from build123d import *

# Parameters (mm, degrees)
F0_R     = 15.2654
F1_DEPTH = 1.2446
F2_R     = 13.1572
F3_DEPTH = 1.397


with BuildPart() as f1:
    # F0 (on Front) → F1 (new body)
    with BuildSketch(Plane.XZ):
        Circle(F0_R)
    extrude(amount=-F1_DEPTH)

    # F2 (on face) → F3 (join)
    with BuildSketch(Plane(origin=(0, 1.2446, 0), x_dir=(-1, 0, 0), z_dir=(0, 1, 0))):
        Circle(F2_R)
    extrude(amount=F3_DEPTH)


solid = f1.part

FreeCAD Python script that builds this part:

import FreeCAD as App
import Part
import Sketcher
Q = App.Units.Quantity

doc = App.newDocument("Part")
body = doc.addObject("PartDesign::Body", "Body")

# Sketch on XZ plane
sketch1 = body.newObject("Sketcher::SketchObject", "Sketch")
sketch1.AttachmentSupport = (doc.getObject("XZ_Plane"), [""])
sketch1.MapMode = "FlatFace"
sketch1.addGeometry(Part.Circle(App.Vector(0, 0, 0), App.Vector(0, 0, 1), 15), False)
sketch1.addConstraint(Sketcher.Constraint("Coincident", 0, 3, -1, 1))
sketch1.addConstraint(Sketcher.Constraint("Diameter", 0, Q("1.202 in")))
pad1 = body.newObject("PartDesign::Pad", "Pad")
pad1.Profile = sketch1
pad1.Length = Q("0.049 in")
pad1.Reversed = True

# Sketch on XZ plane
sketch2 = body.newObject("Sketcher::SketchObject", "Sketch001")
sketch2.AttachmentSupport = (doc.getObject("XZ_Plane"), [""])
sketch2.MapMode = "FlatFace"
sketch2.AttachmentOffset = App.Placement(App.Vector(0, 0, -0.049 * 25.4), App.Rotation())
sketch2.addGeometry(Part.Circle(App.Vector(0, 0, 0), App.Vector(0, 0, 1), 13), False)
sketch2.addConstraint(Sketcher.Constraint("Coincident", 0, 3, -1, 1))
sketch2.addConstraint(Sketcher.Constraint("Diameter", 0, Q("1.036 in")))
pad2 = body.newObject("PartDesign::Pad", "Pad001")
pad2.Profile = sketch2
pad2.Length = Q("0.055 in")
pad2.Reversed = True

doc.recompute()
